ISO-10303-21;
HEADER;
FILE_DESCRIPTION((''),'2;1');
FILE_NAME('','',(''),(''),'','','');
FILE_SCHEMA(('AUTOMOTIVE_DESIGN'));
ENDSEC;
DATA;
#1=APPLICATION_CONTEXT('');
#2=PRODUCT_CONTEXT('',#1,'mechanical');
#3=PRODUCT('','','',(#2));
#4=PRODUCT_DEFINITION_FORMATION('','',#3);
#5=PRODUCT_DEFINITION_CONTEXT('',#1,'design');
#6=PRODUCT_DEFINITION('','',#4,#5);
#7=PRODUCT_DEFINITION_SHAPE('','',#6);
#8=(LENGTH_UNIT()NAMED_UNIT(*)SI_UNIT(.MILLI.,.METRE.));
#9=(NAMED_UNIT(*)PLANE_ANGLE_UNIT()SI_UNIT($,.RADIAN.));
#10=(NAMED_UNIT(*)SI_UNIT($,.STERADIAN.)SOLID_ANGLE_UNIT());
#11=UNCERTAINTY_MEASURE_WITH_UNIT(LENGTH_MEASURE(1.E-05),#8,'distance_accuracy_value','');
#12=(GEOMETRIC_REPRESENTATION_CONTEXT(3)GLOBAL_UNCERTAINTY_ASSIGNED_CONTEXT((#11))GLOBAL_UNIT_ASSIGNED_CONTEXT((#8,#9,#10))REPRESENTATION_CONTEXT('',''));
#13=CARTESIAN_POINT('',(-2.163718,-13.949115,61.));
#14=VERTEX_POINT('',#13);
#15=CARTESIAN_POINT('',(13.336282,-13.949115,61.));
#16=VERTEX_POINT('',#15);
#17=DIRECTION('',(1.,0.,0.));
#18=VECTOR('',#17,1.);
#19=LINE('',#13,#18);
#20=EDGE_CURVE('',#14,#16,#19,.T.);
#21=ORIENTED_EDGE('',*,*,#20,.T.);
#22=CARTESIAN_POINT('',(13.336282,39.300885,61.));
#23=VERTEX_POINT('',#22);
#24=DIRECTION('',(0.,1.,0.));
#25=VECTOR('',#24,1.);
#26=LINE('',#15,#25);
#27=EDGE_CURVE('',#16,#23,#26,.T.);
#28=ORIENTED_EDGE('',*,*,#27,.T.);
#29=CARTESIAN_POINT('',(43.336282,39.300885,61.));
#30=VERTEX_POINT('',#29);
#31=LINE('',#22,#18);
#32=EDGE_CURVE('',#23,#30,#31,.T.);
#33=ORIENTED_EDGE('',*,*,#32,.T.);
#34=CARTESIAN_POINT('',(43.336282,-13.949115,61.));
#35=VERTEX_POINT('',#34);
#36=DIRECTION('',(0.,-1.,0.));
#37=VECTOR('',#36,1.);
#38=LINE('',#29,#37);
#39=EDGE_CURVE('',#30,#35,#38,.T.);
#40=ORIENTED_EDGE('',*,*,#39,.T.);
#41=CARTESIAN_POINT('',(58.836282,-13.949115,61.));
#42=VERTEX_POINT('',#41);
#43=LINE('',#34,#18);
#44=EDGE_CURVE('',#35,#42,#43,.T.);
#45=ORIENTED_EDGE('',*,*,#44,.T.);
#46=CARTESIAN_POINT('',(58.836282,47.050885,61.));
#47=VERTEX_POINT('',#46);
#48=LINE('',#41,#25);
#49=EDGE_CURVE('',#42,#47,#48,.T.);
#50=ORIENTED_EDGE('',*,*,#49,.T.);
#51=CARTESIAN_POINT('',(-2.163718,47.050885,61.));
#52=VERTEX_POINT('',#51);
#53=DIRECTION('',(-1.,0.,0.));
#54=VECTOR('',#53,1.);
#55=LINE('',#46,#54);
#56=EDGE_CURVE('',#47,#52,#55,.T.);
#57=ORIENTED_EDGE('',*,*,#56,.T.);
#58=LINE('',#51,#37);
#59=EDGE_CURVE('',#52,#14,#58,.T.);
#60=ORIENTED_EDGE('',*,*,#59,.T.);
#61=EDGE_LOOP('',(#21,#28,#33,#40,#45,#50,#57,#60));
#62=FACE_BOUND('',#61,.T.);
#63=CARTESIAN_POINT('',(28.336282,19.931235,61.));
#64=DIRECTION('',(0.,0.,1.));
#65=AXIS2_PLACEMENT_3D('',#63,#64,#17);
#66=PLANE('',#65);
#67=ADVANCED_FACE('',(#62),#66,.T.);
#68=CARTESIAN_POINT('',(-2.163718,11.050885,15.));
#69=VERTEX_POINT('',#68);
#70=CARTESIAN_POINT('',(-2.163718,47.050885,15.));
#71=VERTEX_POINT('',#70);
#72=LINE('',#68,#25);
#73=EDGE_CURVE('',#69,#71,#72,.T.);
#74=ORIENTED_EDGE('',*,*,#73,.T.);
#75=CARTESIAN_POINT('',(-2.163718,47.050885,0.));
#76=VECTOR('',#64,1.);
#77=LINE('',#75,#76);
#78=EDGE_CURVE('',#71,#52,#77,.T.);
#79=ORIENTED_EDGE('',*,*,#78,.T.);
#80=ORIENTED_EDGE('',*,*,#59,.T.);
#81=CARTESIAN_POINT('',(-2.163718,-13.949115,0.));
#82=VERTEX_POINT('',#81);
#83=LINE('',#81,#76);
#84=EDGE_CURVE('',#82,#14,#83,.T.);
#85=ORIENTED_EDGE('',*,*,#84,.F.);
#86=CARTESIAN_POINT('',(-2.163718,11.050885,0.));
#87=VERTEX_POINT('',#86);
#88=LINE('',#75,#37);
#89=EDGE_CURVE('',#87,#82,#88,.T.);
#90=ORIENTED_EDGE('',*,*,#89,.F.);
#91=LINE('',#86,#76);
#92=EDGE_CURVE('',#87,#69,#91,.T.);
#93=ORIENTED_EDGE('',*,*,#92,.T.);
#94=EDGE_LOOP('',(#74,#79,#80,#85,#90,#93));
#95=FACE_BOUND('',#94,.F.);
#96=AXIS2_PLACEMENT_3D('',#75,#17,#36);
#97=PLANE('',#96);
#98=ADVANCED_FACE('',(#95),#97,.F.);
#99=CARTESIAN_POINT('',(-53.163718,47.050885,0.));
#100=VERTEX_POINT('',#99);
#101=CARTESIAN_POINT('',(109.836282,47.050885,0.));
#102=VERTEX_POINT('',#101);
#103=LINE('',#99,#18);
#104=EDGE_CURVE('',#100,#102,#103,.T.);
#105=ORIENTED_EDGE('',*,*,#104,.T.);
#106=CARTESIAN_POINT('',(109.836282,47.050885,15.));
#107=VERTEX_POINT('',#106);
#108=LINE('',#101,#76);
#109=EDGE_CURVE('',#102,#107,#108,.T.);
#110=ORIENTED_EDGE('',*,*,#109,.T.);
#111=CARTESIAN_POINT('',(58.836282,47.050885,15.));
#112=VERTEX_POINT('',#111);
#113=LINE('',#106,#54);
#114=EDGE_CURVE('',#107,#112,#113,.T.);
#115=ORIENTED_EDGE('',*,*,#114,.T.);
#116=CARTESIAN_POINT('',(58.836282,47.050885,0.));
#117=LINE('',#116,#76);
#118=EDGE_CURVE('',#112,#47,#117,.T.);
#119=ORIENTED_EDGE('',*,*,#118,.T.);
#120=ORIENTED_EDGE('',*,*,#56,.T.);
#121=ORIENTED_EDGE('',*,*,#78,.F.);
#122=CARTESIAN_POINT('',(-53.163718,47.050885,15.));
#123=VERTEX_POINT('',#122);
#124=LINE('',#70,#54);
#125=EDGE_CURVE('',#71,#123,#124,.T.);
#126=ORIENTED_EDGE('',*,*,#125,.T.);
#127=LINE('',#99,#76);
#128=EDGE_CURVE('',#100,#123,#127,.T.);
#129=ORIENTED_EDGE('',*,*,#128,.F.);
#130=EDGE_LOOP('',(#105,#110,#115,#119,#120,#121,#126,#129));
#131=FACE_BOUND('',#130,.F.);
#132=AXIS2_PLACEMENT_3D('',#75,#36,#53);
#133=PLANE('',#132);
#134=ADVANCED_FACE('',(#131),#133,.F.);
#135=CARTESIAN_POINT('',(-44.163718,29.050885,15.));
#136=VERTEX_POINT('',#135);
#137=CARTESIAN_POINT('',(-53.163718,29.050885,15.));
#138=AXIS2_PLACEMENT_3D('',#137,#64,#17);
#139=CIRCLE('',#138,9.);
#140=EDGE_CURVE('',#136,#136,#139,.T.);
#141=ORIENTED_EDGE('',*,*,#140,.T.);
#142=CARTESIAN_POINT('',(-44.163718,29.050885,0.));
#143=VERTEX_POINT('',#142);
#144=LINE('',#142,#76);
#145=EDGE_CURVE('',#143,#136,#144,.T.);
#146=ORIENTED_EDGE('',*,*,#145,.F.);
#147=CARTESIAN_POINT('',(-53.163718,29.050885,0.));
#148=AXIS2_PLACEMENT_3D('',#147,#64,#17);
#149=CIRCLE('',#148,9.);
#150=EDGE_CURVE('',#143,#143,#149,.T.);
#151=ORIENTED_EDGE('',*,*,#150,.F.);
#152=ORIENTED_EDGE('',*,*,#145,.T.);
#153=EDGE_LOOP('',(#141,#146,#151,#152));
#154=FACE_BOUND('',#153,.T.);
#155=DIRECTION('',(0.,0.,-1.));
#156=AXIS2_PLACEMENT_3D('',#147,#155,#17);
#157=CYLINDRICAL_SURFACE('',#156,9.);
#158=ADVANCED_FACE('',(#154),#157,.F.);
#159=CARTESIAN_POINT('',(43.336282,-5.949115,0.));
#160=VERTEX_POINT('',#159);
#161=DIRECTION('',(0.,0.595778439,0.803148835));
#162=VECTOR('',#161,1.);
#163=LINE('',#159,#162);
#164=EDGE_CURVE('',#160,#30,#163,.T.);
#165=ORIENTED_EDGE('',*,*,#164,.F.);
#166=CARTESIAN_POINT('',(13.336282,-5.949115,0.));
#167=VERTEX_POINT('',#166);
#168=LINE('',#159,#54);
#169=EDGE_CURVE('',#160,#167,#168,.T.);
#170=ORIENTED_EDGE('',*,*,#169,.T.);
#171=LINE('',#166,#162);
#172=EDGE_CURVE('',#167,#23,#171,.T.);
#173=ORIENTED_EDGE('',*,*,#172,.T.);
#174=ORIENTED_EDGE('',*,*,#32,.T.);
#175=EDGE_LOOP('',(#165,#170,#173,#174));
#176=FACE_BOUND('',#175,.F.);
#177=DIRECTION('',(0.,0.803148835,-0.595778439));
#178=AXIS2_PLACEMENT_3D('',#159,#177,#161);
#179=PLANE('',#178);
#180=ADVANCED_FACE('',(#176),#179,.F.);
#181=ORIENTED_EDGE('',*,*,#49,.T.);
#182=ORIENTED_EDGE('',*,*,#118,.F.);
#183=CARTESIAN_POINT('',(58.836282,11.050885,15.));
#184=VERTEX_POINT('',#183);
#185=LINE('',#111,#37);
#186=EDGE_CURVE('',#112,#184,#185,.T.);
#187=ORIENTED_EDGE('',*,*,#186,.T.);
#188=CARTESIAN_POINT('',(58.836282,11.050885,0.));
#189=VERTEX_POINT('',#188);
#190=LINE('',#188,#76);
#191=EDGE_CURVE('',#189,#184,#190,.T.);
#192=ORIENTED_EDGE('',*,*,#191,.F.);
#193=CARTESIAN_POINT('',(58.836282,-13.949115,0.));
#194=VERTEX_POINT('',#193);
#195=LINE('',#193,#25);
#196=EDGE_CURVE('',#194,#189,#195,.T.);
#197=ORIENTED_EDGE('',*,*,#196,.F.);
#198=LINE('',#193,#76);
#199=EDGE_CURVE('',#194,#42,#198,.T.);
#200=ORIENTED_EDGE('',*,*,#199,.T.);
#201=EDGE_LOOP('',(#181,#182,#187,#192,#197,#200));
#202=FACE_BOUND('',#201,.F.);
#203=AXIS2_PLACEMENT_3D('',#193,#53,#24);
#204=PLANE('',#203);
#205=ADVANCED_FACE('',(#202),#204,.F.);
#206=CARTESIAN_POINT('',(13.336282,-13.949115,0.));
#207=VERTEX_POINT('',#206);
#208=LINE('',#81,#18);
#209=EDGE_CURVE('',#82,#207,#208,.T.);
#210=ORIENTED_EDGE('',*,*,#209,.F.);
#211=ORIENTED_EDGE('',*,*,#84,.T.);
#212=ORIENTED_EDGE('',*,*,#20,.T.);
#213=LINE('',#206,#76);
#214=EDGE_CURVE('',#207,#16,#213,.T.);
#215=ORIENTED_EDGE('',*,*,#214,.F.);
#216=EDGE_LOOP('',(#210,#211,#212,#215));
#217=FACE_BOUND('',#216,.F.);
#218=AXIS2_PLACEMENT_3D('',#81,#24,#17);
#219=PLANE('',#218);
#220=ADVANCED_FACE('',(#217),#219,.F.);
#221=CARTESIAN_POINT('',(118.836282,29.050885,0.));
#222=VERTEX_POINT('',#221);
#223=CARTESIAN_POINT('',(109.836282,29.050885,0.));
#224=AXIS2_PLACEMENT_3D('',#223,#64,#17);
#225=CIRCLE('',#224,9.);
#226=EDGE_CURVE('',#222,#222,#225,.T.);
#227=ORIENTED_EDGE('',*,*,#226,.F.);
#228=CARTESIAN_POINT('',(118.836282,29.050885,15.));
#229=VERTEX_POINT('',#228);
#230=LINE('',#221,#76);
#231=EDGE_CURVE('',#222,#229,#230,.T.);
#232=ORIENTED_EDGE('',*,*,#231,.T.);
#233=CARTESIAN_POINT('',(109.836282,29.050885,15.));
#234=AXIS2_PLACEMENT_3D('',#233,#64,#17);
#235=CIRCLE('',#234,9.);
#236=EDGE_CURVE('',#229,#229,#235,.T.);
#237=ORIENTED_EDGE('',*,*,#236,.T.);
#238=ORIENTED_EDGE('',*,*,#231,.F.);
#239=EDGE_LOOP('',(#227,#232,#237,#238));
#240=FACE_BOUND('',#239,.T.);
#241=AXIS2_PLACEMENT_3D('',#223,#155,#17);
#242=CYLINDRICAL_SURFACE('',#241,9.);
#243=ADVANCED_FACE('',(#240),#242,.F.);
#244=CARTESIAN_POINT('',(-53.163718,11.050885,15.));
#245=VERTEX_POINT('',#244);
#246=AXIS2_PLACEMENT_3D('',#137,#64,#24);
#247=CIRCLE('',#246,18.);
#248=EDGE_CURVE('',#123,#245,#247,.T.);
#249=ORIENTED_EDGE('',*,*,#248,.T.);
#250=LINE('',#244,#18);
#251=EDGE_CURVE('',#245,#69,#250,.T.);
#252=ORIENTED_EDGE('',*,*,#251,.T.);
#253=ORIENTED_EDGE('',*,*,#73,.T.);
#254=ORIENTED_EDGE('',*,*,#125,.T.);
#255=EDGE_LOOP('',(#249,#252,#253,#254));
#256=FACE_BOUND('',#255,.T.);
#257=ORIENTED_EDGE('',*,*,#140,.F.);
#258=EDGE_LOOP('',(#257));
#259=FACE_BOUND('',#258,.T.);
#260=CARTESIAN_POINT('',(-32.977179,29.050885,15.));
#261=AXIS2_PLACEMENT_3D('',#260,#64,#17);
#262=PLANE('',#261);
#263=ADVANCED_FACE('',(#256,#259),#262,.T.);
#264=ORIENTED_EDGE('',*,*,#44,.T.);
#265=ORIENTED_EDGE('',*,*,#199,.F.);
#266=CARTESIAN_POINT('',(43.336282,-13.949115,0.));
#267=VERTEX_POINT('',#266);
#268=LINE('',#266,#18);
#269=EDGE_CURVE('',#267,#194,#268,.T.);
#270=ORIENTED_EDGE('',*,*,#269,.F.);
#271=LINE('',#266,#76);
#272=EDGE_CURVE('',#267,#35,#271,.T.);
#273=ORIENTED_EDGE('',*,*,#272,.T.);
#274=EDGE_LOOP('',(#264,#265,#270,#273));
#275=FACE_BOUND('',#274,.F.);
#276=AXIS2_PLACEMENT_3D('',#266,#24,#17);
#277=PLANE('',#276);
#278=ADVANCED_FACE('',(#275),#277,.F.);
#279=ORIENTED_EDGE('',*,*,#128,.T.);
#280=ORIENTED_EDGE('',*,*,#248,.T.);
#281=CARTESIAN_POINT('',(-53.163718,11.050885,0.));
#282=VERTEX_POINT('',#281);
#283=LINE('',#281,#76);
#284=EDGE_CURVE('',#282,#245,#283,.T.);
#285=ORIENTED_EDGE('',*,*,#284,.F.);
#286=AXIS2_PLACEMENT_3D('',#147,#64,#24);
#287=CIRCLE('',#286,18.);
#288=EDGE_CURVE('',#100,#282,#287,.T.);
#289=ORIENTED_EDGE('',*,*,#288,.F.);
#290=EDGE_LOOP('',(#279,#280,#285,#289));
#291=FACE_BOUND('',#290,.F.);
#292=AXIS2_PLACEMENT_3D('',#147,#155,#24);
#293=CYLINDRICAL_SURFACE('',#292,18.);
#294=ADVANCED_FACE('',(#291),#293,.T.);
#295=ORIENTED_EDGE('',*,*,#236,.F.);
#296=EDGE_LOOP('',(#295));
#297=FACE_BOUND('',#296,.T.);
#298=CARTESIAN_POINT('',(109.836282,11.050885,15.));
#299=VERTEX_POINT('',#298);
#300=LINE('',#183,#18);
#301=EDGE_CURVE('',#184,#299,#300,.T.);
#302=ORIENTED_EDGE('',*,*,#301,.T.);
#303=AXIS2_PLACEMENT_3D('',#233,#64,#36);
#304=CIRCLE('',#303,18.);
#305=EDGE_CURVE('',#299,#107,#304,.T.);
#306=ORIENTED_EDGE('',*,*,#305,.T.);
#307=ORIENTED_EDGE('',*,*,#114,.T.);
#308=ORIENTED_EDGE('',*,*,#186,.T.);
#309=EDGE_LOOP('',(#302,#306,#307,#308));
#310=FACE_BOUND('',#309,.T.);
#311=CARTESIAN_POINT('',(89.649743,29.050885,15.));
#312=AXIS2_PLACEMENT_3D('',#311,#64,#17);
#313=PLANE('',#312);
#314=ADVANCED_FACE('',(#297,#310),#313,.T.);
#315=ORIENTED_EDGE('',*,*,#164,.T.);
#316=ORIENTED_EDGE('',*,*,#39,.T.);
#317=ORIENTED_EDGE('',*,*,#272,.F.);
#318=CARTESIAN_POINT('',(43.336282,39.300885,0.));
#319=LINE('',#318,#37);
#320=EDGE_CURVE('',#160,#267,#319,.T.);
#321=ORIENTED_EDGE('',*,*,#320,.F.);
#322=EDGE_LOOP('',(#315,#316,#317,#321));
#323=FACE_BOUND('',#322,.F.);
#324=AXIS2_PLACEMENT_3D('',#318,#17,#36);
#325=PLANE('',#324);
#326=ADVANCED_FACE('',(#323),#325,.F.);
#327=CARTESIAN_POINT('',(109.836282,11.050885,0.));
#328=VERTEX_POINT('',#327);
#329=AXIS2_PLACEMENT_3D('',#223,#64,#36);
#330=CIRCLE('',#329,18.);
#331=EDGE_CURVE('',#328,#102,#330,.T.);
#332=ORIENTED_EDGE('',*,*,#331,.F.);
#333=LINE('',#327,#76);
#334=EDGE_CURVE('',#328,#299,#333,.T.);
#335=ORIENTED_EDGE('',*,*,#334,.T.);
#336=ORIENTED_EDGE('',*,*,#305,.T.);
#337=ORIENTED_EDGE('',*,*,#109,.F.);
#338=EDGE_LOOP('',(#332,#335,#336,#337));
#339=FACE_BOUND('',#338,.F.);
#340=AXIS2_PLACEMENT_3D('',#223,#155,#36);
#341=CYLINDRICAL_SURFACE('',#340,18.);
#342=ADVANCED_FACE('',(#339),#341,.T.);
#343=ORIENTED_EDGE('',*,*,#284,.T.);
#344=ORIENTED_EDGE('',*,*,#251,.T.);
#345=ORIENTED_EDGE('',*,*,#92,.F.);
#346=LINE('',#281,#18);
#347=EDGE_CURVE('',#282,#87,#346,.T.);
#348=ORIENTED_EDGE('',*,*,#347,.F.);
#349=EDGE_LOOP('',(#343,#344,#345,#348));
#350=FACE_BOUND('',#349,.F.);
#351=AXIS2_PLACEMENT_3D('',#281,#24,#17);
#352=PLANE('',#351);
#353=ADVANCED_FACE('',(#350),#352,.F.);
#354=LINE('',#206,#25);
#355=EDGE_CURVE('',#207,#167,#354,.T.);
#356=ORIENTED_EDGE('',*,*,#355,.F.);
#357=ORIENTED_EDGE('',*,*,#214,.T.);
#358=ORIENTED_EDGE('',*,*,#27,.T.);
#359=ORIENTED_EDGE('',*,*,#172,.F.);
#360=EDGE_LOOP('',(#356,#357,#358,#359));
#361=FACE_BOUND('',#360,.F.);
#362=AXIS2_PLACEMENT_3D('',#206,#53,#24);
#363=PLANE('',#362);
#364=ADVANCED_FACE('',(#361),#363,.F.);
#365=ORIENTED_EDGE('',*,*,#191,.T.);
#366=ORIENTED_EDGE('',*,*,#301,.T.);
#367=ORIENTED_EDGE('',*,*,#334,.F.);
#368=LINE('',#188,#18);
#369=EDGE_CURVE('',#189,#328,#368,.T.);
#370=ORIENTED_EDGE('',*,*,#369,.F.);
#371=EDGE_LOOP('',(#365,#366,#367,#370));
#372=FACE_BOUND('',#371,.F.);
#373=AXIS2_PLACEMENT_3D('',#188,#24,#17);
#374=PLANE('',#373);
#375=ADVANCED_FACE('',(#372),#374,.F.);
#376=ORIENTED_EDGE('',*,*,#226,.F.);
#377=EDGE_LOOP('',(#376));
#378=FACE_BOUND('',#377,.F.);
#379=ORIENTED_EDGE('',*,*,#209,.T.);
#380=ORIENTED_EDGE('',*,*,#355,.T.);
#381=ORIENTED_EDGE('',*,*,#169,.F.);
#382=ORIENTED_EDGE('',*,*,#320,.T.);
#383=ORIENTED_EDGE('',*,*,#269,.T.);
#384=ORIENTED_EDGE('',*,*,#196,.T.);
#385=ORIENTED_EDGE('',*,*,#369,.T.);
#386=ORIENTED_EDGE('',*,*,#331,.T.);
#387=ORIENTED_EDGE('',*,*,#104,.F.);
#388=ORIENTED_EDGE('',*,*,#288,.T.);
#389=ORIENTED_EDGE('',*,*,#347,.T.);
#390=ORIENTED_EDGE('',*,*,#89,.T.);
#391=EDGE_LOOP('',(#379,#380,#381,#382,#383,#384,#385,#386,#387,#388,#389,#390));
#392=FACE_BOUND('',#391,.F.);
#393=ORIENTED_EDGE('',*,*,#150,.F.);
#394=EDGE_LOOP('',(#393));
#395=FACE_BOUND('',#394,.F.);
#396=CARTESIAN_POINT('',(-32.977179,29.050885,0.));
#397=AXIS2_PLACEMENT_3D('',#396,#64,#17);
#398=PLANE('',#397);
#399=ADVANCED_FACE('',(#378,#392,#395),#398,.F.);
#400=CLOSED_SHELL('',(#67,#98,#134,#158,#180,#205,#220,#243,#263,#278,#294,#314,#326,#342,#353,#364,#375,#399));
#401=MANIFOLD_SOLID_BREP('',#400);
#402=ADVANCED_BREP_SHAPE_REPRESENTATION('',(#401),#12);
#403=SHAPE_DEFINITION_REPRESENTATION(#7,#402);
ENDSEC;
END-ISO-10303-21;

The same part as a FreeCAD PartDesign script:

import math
import FreeCAD as App
import Part
import Sketcher

V = App.Vector


def add_polygon(sketch, points):
    """Adds a closed chain of lines whose ends are joined by coincident constraints."""
    first, n = sketch.GeometryCount, len(points)
    for a, b in zip(points, points[1:] + points[:1]):
        sketch.addGeometry(Part.LineSegment(App.Vector(*a, 0), App.Vector(*b, 0)), False)
    for i in range(n):
        sketch.addConstraint(Sketcher.Constraint("Coincident", first + i, 2, first + (i + 1) % n, 1))

doc = App.newDocument("Part")
body = doc.addObject("PartDesign::Body", "Body")

# Sketch on XY plane
sketch1 = body.newObject("Sketcher::SketchObject", "Sketch")
sketch1.AttachmentSupport = (doc.getObject("XY_Plane"), [""])
sketch1.MapMode = "FlatFace"
add_polygon(sketch1, [(-2, -14), (13, -14), (13, 39), (43, 39), (43, -14), (59, -14), (59, 47), (-2, 47)])  # lines 0-7
sketch1.addConstraint([
    Sketcher.Constraint("Horizontal", 0),
    Sketcher.Constraint("Vertical", 1),
    Sketcher.Constraint("Horizontal", 2),
    Sketcher.Constraint("Vertical", 3),
    Sketcher.Constraint("Horizontal", 4),
    Sketcher.Constraint("Vertical", 5),
    Sketcher.Constraint("Horizontal", 6),
    Sketcher.Constraint("Vertical", 7),
    Sketcher.Constraint("Horizontal", 0, 2, 3, 2),
    Sketcher.Constraint("Equal", 0, 4),
    Sketcher.Constraint("Equal", 6, 5),
    Sketcher.Constraint("DistanceX", 2, 1, 2, 2, 30.0),
    Sketcher.Constraint("DistanceX", 6, 2, 6, 1, 61.0),
    Sketcher.Constraint("DistanceY", 1, 1, 1, 2, 53.25),
    Sketcher.Constraint("DistanceX", -1, 1, 2, 2, 43.336282),
    Sketcher.Constraint("DistanceY", 0, 2, -1, 1, 13.949115),
])
pad1 = body.newObject("PartDesign::Pad", "Pad")
pad1.Profile = sketch1
pad1.Length = 61

# Sketch on YZ plane
sketch2 = body.newObject("Sketcher::SketchObject", "Sketch001")
sketch2.AttachmentSupport = (doc.getObject("YZ_Plane"), [""])
sketch2.MapMode = "FlatFace"
sketch2.AttachmentOffset = App.Placement(V(0, 0, 43.336282), App.Rotation())
add_polygon(sketch2, [(39, 0), (-6, 0), (39, 61)])  # lines 0-2
sketch2.addConstraint([
    Sketcher.Constraint("Horizontal", 0),
    Sketcher.Constraint("Vertical", 2),
    Sketcher.Constraint("PointOnObject", 0, 2, -1),
    Sketcher.Constraint("DistanceY", 2, 2, 2, 1, 61.0),
    Sketcher.Constraint("DistanceX", 0, 2, 0, 1, 45.25),
    Sketcher.Constraint("DistanceX", 0, 2, -1, 1, 5.949115),
])
pad2 = body.newObject("PartDesign::Pad", "Pad001")
pad2.Profile = sketch2
pad2.Length = 30
pad2.Reversed = True

# Sketch on XY plane
sketch3 = body.newObject("Sketcher::SketchObject", "Sketch002")
sketch3.AttachmentSupport = (doc.getObject("XY_Plane"), [""])
sketch3.MapMode = "FlatFace"
sketch3.addGeometry([
    Part.LineSegment(V(-53, 11, 0), V(-2, 11, 0)),  # 0
    Part.LineSegment(V(-2, 11, 0), V(-2, 47, 0)),  # 1
    Part.LineSegment(V(-2, 47, 0), V(-53, 47, 0)),  # 2
    Part.ArcOfCircle(Part.Circle(V(-53, 29, 0), V(0, 0, 1), 18), math.radians(90), math.radians(270)),  # 3
    Part.Circle(V(-53, 29, 0), V(0, 0, 1), 9),  # 4
    Part.LineSegment(V(110, 47, 0), V(59, 47, 0)),  # 5
    Part.LineSegment(V(59, 47, 0), V(59, 11, 0)),  # 6
    Part.LineSegment(V(59, 11, 0), V(110, 11, 0)),  # 7
    Part.ArcOfCircle(Part.Circle(V(110, 29, 0), V(0, 0, 1), 18), math.radians(-90), math.radians(90)),  # 8
    Part.Circle(V(110, 29, 0), V(0, 0, 1), 9),  # 9
], False)
sketch3.addConstraint([
    Sketcher.Constraint("Coincident", 0, 2, 1, 1),
    Sketcher.Constraint("Coincident", 1, 2, 2, 1),
    Sketcher.Constraint("Tangent", 2, 2, 3, 1),
    Sketcher.Constraint("Tangent", 3, 2, 0, 1),
    Sketcher.Constraint("Coincident", 5, 2, 6, 1),
    Sketcher.Constraint("Coincident", 6, 2, 7, 1),
    Sketcher.Constraint("Tangent", 7, 2, 8, 1),
    Sketcher.Constraint("Tangent", 8, 2, 5, 1),
    Sketcher.Constraint("Horizontal", 0),
    Sketcher.Constraint("Vertical", 1),
    Sketcher.Constraint("Horizontal", 2),
    Sketcher.Constraint("Horizontal", 5),
    Sketcher.Constraint("Vertical", 6),
    Sketcher.Constraint("Horizontal", 7),
    Sketcher.Constraint("Coincident", 4, 3, 3, 3),
    Sketcher.Constraint("Coincident", 9, 3, 8, 3),
    Sketcher.Constraint("Equal", 3, 8),
    Sketcher.Constraint("Equal", 4, 9),
    Sketcher.Constraint("Horizontal", 4, 3, 8, 3),
    Sketcher.Constraint("Equal", 2, 5),
    Sketcher.Constraint("Diameter", 4, 18.0),
    Sketcher.Constraint("Radius", 3, 18.0),
    Sketcher.Constraint("DistanceX", 0, 1, 0, 2, 51.0),
    Sketcher.Constraint("DistanceX", 3, 3, 8, 3, 163.0),
    Sketcher.Constraint("DistanceX", 3, 3, -1, 1, 53.163718),
    Sketcher.Constraint("DistanceY", -1, 1, 3, 3, 29.050885),
])
pad3 = body.newObject("PartDesign::Pad", "Pad002")
pad3.Profile = sketch3
pad3.Length = 15

doc.recompute()
